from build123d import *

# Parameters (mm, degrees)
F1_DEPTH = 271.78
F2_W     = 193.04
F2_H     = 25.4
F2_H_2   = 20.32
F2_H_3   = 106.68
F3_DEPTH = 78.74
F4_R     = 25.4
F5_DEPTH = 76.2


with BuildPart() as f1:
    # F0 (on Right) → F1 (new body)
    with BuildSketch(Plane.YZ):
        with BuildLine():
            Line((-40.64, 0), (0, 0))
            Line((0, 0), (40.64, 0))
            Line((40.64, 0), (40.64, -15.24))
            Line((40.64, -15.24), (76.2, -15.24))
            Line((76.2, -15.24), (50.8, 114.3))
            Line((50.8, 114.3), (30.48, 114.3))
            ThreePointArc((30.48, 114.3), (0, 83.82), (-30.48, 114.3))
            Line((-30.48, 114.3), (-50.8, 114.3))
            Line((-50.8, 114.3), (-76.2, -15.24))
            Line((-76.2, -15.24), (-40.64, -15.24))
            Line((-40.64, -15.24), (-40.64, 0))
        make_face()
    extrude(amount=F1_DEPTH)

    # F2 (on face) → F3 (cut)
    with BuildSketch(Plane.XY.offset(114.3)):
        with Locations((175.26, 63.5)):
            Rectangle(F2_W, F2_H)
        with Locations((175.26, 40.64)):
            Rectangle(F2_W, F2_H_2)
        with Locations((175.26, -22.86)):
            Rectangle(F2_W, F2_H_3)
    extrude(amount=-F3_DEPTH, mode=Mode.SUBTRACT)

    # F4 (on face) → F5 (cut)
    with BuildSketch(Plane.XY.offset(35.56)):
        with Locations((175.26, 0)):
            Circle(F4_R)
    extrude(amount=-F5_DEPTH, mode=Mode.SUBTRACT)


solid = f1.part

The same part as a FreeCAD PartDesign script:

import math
import FreeCAD as App
import Part
import Sketcher
from FreeCAD import Vector
Q = App.Units.Quantity


def add_polygon(sketch, points):
    """Adds a closed chain of lines whose ends are joined by coincident constraints."""
    first, n = sketch.GeometryCount, len(points)
    for a, b in zip(points, points[1:] + points[:1]):
        sketch.addGeometry(Part.LineSegment(App.Vector(*a, 0), App.Vector(*b, 0)), False)
    for i in range(n):
        sketch.addConstraint(Sketcher.Constraint("Coincident", first + i, 2, first + (i + 1) % n, 1))

doc = App.newDocument("Part")
body = doc.addObject("PartDesign::Body", "Body")

sketch1 = doc.addObject("Sketcher::SketchObject", "Sketch")
body.addObject(sketch1)
sketch1.AttachmentSupport = (doc.YZ_Plane, [""])
sketch1.MapMode = "FlatFace"
sketch1.addGeometry([
    Part.LineSegment(Vector(-40.64, 0, 0), Vector(40.64, 0, 0)),
    Part.LineSegment(Vector(40.64, 0, 0), Vector(40.64, -15.24, 0)),
    Part.LineSegment(Vector(40.64, -15.24, 0), Vector(76.2, -15.24, 0)),
    Part.LineSegment(Vector(76.2, -15.24, 0), Vector(50.8, 114.3, 0)),
    Part.LineSegment(Vector(50.8, 114.3, 0), Vector(30.48, 114.3, 0)),
    Part.ArcOfCircle(Part.Circle(Vector(0, 114.3, 0), Vector(0, 0, 1), 30.48), math.radians(180), math.radians(360)),
    Part.LineSegment(Vector(-30.48, 114.3, 0), Vector(-50.8, 114.3, 0)),
    Part.LineSegment(Vector(-50.8, 114.3, 0), Vector(-76.2, -15.24, 0)),
    Part.LineSegment(Vector(-76.2, -15.24, 0), Vector(-40.64, -15.24, 0)),
    Part.LineSegment(Vector(-40.64, -15.24, 0), Vector(-40.64, 0, 0)),
], False)
sketch1.addConstraint([
    Sketcher.Constraint("Coincident", 0, 2, 1, 1),
    Sketcher.Constraint("Coincident", 1, 2, 2, 1),
    Sketcher.Constraint("Coincident", 2, 2, 3, 1),
    Sketcher.Constraint("Coincident", 3, 2, 4, 1),
    Sketcher.Constraint("Coincident", 4, 2, 5, 2),
    Sketcher.Constraint("Coincident", 5, 1, 6, 1),
    Sketcher.Constraint("Coincident", 6, 2, 7, 1),
    Sketcher.Constraint("Coincident", 7, 2, 8, 1),
    Sketcher.Constraint("Coincident", 8, 2, 9, 1),
    Sketcher.Constraint("Coincident", 9, 2, 0, 1),
    Sketcher.Constraint("Horizontal", 0),
    Sketcher.Constraint("Vertical", 1),
    Sketcher.Constraint("Horizontal", 2),
    Sketcher.Constraint("Horizontal", 4),
    Sketcher.Constraint("Horizontal", 6),
    Sketcher.Constraint("Horizontal", 8),
    Sketcher.Constraint("Vertical", 9),
    Sketcher.Constraint("Symmetric", 0, 2, 9, 2, -1, 1),
    Sketcher.Constraint("Symmetric", 4, 2, 5, 1, -2),
    Sketcher.Constraint("Symmetric", 2, 2, 7, 2, -2),
    Sketcher.Constraint("Horizontal", 5, 3, 3, 2),
    Sketcher.Constraint("Equal", 4, 6),
    Sketcher.Constraint("Radius", 5, Q("1.2 in")),
    Sketcher.Constraint("DistanceX", 0, 1, 0, 2, Q("3.2 in")),
    Sketcher.Constraint("DistanceX", 2, 1, 2, 2, Q("1.4 in")),
    Sketcher.Constraint("DistanceX", 4, 2, 4, 1, Q("0.8 in")),
    Sketcher.Constraint("DistanceY", 1, 2, 1, 1, Q("0.6 in")),
    Sketcher.Constraint("DistanceY", -1, 1, 5, 3, Q("4.5 in")),
])
pad1 = doc.addObject("PartDesign::Pad", "Pad")
body.addObject(pad1)
pad1.Profile = sketch1
pad1.Length = Q("10.7 in")

sketch2 = doc.addObject("Sketcher::SketchObject", "Sketch001")
body.addObject(sketch2)
sketch2.AttachmentSupport = (doc.XY_Plane, [""])
sketch2.MapMode = "FlatFace"
sketch2.AttachmentOffset = App.Placement(Vector(0, 0, 4.5 * 25.4), App.Rotation())
add_polygon(sketch2, [(78.74, 76.2), (78.74, -76.2), (271.78, -76.2), (271.78, 76.2)])
sketch2.addConstraint([
    Sketcher.Constraint("Vertical", 0),
    Sketcher.Constraint("Horizontal", 1),
    Sketcher.Constraint("Vertical", 2),
    Sketcher.Constraint("Horizontal", 3),
    Sketcher.Constraint("DistanceY", 0, 2, 0, 1, Q("6 in")),
    Sketcher.Constraint("DistanceX", 1, 1, 1, 2, Q("7.6 in")),
    Sketcher.Constraint("DistanceY", 0, 2, -1, 1, Q("3 in")),
    Sketcher.Constraint("DistanceX", -1, 1, 0, 2, Q("3.1 in")),
])
pocket1 = doc.addObject("PartDesign::Pocket", "Pocket")
body.addObject(pocket1)
pocket1.Profile = sketch2
pocket1.Length = Q("3.1 in")

sketch3 = doc.addObject("Sketcher::SketchObject", "Sketch002")
body.addObject(sketch3)
sketch3.AttachmentSupport = (doc.XY_Plane, [""])
sketch3.MapMode = "FlatFace"
sketch3.AttachmentOffset = App.Placement(Vector(0, 0, 1.4 * 25.4), App.Rotation())
sketch3.addGeometry(Part.Circle(Vector(175.26, 0, 0), Vector(0, 0, 1), 25.4), False)
sketch3.addConstraint([
    Sketcher.Constraint("PointOnObject", 0, 3, -1),
    Sketcher.Constraint("Diameter", 0, Q("2 in")),
    Sketcher.Constraint("DistanceX", -1, 1, 0, 3, Q("6.9 in")),
])
pocket2 = doc.addObject("PartDesign::Pocket", "Pocket001")
body.addObject(pocket2)
pocket2.Profile = sketch3
pocket2.Length = Q("3 in")

doc.recompute()
